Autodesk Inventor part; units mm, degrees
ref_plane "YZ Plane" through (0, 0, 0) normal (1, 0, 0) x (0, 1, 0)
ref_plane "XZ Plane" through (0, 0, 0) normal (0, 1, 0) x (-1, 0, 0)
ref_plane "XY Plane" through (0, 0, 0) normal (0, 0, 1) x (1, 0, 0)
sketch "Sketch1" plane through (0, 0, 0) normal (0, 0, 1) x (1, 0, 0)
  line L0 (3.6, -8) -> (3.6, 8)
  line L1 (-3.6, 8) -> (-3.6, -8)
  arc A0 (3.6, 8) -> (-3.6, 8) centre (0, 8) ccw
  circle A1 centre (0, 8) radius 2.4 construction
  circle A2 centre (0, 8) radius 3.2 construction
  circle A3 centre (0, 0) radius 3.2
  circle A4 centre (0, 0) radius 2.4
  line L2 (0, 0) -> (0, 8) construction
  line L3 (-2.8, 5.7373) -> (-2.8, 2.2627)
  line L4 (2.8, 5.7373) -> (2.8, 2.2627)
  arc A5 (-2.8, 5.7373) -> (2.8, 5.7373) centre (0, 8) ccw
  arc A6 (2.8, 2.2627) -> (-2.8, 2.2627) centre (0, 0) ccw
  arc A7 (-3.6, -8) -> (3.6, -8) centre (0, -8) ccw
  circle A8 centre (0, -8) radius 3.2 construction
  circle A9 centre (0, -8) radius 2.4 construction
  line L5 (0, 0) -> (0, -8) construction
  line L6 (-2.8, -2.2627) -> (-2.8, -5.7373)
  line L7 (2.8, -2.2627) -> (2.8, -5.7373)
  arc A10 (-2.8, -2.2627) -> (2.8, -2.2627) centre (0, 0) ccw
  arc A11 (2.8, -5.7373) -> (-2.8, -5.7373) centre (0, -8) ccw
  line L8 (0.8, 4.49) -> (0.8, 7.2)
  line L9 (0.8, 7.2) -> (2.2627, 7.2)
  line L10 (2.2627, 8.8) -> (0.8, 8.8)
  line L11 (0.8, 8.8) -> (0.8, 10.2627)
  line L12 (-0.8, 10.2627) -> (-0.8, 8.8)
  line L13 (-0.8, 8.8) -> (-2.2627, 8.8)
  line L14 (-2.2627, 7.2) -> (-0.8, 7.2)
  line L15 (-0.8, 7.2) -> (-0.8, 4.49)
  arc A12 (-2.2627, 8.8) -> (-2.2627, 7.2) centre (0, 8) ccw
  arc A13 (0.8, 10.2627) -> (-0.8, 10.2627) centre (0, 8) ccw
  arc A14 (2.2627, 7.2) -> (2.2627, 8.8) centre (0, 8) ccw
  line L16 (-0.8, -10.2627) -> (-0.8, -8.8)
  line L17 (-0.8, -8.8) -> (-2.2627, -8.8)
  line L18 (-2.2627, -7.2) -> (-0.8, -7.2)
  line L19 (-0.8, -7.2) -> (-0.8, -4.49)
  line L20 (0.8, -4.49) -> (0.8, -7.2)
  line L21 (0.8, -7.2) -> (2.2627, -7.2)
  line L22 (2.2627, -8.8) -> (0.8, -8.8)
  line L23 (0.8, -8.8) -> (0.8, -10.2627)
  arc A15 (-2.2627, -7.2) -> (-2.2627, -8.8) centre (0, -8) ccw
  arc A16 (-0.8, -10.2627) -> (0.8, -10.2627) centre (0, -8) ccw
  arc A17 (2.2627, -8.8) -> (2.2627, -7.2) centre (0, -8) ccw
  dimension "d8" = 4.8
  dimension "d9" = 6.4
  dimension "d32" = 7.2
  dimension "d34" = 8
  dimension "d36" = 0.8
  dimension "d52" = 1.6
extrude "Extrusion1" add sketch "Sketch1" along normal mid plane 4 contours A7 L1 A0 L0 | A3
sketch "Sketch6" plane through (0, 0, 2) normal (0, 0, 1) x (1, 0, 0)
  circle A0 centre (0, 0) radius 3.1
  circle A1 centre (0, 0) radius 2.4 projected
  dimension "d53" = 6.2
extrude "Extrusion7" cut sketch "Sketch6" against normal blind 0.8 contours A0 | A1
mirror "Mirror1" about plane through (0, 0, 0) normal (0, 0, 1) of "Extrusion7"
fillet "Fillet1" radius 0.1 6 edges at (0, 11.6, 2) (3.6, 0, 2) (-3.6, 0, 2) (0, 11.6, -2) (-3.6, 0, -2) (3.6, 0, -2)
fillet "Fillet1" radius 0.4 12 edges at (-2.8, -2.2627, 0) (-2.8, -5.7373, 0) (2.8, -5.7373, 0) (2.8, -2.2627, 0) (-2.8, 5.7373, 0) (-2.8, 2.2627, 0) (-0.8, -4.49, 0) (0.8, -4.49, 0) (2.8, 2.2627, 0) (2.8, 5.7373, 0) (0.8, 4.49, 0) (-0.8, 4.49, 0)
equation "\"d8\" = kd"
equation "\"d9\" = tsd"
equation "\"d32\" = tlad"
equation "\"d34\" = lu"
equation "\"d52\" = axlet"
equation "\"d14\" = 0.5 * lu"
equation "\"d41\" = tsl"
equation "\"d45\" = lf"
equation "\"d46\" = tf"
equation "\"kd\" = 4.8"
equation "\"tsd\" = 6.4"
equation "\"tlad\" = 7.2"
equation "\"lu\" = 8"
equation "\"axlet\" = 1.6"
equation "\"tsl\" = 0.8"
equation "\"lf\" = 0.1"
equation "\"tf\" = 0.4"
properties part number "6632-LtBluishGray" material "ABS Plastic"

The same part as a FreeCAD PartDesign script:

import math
import FreeCAD as App
import Part
import Sketcher
from FreeCAD import Vector
Q = App.Units.Quantity


def edges_at(feature, points):
    """Names of the edges that pass closest to the given points."""
    edges = feature.Shape.Edges
    near = lambda p: min(range(len(edges)), key=lambda i: edges[i].distToShape(Part.Vertex(*p))[0])
    return sorted({f"Edge{near(p) + 1}" for p in points})

doc = App.newDocument("Part")
body = doc.addObject("PartDesign::Body", "Body")

# Sketch on XY plane
sketch1 = doc.addObject("Sketcher::SketchObject", "Sketch")
body.addObject(sketch1)
sketch1.AttachmentSupport = (doc.XY_Plane, [""])
sketch1.MapMode = "FlatFace"
sketch1.addGeometry(Part.ArcOfCircle(Part.Circle(Vector(0, -8, 0), Vector(0, 0, 1), 3.6), math.radians(180), math.radians(360)), False)
sketch1.addGeometry(Part.LineSegment(Vector(3.6, -8, 0), Vector(3.6, 8, 0)), False)
sketch1.addGeometry(Part.ArcOfCircle(Part.Circle(Vector(0, 8, 0), Vector(0, 0, 1), 3.6), math.radians(0), math.radians(180)), False)
sketch1.addGeometry(Part.LineSegment(Vector(-3.6, 8, 0), Vector(-3.6, -8, 0)), False)
sketch1.addGeometry(Part.LineSegment(Vector(-2.8, -5.7, 0), Vector(-2.8, -2.3, 0)), False)
sketch1.addGeometry(Part.ArcOfCircle(Part.Circle(Vector(0, 0, 0), Vector(0, 0, 1), 3.6), math.radians(-141), math.radians(-39)), False)
sketch1.addGeometry(Part.LineSegment(Vector(2.8, -2.3, 0), Vector(2.8, -5.7, 0)), False)
sketch1.addGeometry(Part.ArcOfCircle(Part.Circle(Vector(0, -8, 0), Vector(0, 0, 1), 3.6), math.radians(39), math.radians(77)), False)
sketch1.addGeometry(Part.LineSegment(Vector(0.8, -4.5, 0), Vector(0.8, -7.2, 0)), False)
sketch1.addGeometry(Part.LineSegment(Vector(0.8, -7.2, 0), Vector(2.3, -7.2, 0)), False)
sketch1.addGeometry(Part.ArcOfCircle(Part.Circle(Vector(0, -8, 0), Vector(0, 0, 1), 2.4), math.radians(-19), math.radians(19)), False)
sketch1.addGeometry(Part.LineSegment(Vector(2.3, -8.8, 0), Vector(0.8, -8.8, 0)), False)
sketch1.addGeometry(Part.LineSegment(Vector(0.8, -8.8, 0), Vector(0.8, -10.3, 0)), False)
sketch1.addGeometry(Part.ArcOfCircle(Part.Circle(Vector(0, -8, 0), Vector(0, 0, 1), 2.4), math.radians(-109), math.radians(-71)), False)
sketch1.addGeometry(Part.LineSegment(Vector(-0.8, -10.3, 0), Vector(-0.8, -8.8, 0)), False)
sketch1.addGeometry(Part.LineSegment(Vector(-0.8, -8.8, 0), Vector(-2.3, -8.8, 0)), False)
sketch1.addGeometry(Part.ArcOfCircle(Part.Circle(Vector(0, -8, 0), Vector(0, 0, 1), 2.4), math.radians(161), math.radians(199)), False)
sketch1.addGeometry(Part.LineSegment(Vector(-2.3, -7.2, 0), Vector(-0.8, -7.2, 0)), False)
sketch1.addGeometry(Part.LineSegment(Vector(-0.8, -7.2, 0), Vector(-0.8, -4.5, 0)), False)
sketch1.addGeometry(Part.ArcOfCircle(Part.Circle(Vector(0, -8, 0), Vector(0, 0, 1), 3.6), math.radians(103), math.radians(141)), False)
sketch1.addGeometry(Part.LineSegment(Vector(-2.8, 2.3, 0), Vector(-2.8, 5.7, 0)), False)
sketch1.addGeometry(Part.ArcOfCircle(Part.Circle(Vector(0, 8, 0), Vector(0, 0, 1), 3.6), math.radians(-141), math.radians(-103)), False)
sketch1.addGeometry(Part.LineSegment(Vector(-0.8, 4.5, 0), Vector(-0.8, 7.2, 0)), False)
sketch1.addGeometry(Part.LineSegment(Vector(-0.8, 7.2, 0), Vector(-2.3, 7.2, 0)), False)
sketch1.addGeometry(Part.ArcOfCircle(Part.Circle(Vector(0, 8, 0), Vector(0, 0, 1), 2.4), math.radians(161), math.radians(199)), False)
sketch1.addGeometry(Part.LineSegment(Vector(-2.3, 8.8, 0), Vector(-0.8, 8.8, 0)), False)
sketch1.addGeometry(Part.LineSegment(Vector(-0.8, 8.8, 0), Vector(-0.8, 10.3, 0)), False)
sketch1.addGeometry(Part.ArcOfCircle(Part.Circle(Vector(0, 8, 0), Vector(0, 0, 1), 2.4), math.radians(71), math.radians(109)), False)
sketch1.addGeometry(Part.LineSegment(Vector(0.8, 10.3, 0), Vector(0.8, 8.8, 0)), False)
sketch1.addGeometry(Part.LineSegment(Vector(0.8, 8.8, 0), Vector(2.3, 8.8, 0)), False)
sketch1.addGeometry(Part.ArcOfCircle(Part.Circle(Vector(0, 8, 0), Vector(0, 0, 1), 2.4), math.radians(-19), math.radians(19)), False)
sketch1.addGeometry(Part.LineSegment(Vector(2.3, 7.2, 0), Vector(0.8, 7.2, 0)), False)
sketch1.addGeometry(Part.LineSegment(Vector(0.8, 7.2, 0), Vector(0.8, 4.5, 0)), False)
sketch1.addGeometry(Part.ArcOfCircle(Part.Circle(Vector(0, 8, 0), Vector(0, 0, 1), 3.6), math.radians(-77), math.radians(-39)), False)
sketch1.addGeometry(Part.LineSegment(Vector(2.8, 5.7, 0), Vector(2.8, 2.3, 0)), False)
sketch1.addGeometry(Part.ArcOfCircle(Part.Circle(Vector(0, 0, 0), Vector(0, 0, 1), 3.6), math.radians(39), math.radians(141)), False)
sketch1.addGeometry(Part.Circle(Vector(0, 0, 0), Vector(0, 0, 1), 2.4), False)
sketch1.addConstraint(Sketcher.Constraint("Tangent", 0, 2, 1, 1))
sketch1.addConstraint(Sketcher.Constraint("Tangent", 1, 2, 2, 1))
sketch1.addConstraint(Sketcher.Constraint("Tangent", 2, 2, 3, 1))
sketch1.addConstraint(Sketcher.Constraint("Tangent", 3, 2, 0, 1))
sketch1.addConstraint(Sketcher.Constraint("Coincident", 4, 2, 5, 1))
sketch1.addConstraint(Sketcher.Constraint("Coincident", 5, 2, 6, 1))
sketch1.addConstraint(Sketcher.Constraint("Coincident", 6, 2, 7, 1))
sketch1.addConstraint(Sketcher.Constraint("Coincident", 7, 2, 8, 1))
sketch1.addConstraint(Sketcher.Constraint("Coincident", 8, 2, 9, 1))
sketch1.addConstraint(Sketcher.Constraint("Coincident", 9, 2, 10, 2))
sketch1.addConstraint(Sketcher.Constraint("Coincident", 10, 1, 11, 1))
sketch1.addConstraint(Sketcher.Constraint("Coincident", 11, 2, 12, 1))
sketch1.addConstraint(Sketcher.Constraint("Coincident", 12, 2, 13, 2))
sketch1.addConstraint(Sketcher.Constraint("Coincident", 13, 1, 14, 1))
sketch1.addConstraint(Sketcher.Constraint("Coincident", 14, 2, 15, 1))
sketch1.addConstraint(Sketcher.Constraint("Coincident", 15, 2, 16, 2))
sketch1.addConstraint(Sketcher.Constraint("Coincident", 16, 1, 17, 1))
sketch1.addConstraint(Sketcher.Constraint("Coincident", 17, 2, 18, 1))
sketch1.addConstraint(Sketcher.Constraint("Coincident", 18, 2, 19, 1))
sketch1.addConstraint(Sketcher.Constraint("Coincident", 19, 2, 4, 1))
sketch1.addConstraint(Sketcher.Constraint("Coincident", 20, 2, 21, 1))
sketch1.addConstraint(Sketcher.Constraint("Coincident", 21, 2, 22, 1))
sketch1.addConstraint(Sketcher.Constraint("Coincident", 22, 2, 23, 1))
sketch1.addConstraint(Sketcher.Constraint("Coincident", 23, 2, 24, 2))
sketch1.addConstraint(Sketcher.Constraint("Coincident", 24, 1, 25, 1))
sketch1.addConstraint(Sketcher.Constraint("Coincident", 25, 2, 26, 1))
sketch1.addConstraint(Sketcher.Constraint("Coincident", 26, 2, 27, 2))
sketch1.addConstraint(Sketcher.Constraint("Coincident", 27, 1, 28, 1))
sketch1.addConstraint(Sketcher.Constraint("Coincident", 28, 2, 29, 1))
sketch1.addConstraint(Sketcher.Constraint("Coincident", 29, 2, 30, 2))
sketch1.addConstraint(Sketcher.Constraint("Coincident", 30, 1, 31, 1))
sketch1.addConstraint(Sketcher.Constraint("Coincident", 31, 2, 32, 1))
sketch1.addConstraint(Sketcher.Constraint("Coincident", 32, 2, 33, 1))
sketch1.addConstraint(Sketcher.Constraint("Coincident", 33, 2, 34, 1))
sketch1.addConstraint(Sketcher.Constraint("Coincident", 34, 2, 35, 1))
sketch1.addConstraint(Sketcher.Constraint("Coincident", 35, 2, 20, 1))
sketch1.addConstraint(Sketcher.Constraint("Vertical", 1))
sketch1.addConstraint(Sketcher.Constraint("Vertical", 3))
sketch1.addConstraint(Sketcher.Constraint("Vertical", 4))
sketch1.addConstraint(Sketcher.Constraint("Vertical", 6))
sketch1.addConstraint(Sketcher.Constraint("Vertical", 8))
sketch1.addConstraint(Sketcher.Constraint("Horizontal", 9))
sketch1.addConstraint(Sketcher.Constraint("Horizontal", 11))
sketch1.addConstraint(Sketcher.Constraint("Vertical", 12))
sketch1.addConstraint(Sketcher.Constraint("Vertical", 14))
sketch1.addConstraint(Sketcher.Constraint("Horizontal", 15))
sketch1.addConstraint(Sketcher.Constraint("Horizontal", 17))
sketch1.addConstraint(Sketcher.Constraint("Vertical", 18))
sketch1.addConstraint(Sketcher.Constraint("Vertical", 20))
sketch1.addConstraint(Sketcher.Constraint("Vertical", 22))
sketch1.addConstraint(Sketcher.Constraint("Horizontal", 23))
sketch1.addConstraint(Sketcher.Constraint("Horizontal", 25))
sketch1.addConstraint(Sketcher.Constraint("Vertical", 26))
sketch1.addConstraint(Sketcher.Constraint("Vertical", 28))
sketch1.addConstraint(Sketcher.Constraint("Horizontal", 29))
sketch1.addConstraint(Sketcher.Constraint("Horizontal", 31))
sketch1.addConstraint(Sketcher.Constraint("Vertical", 32))
sketch1.addConstraint(Sketcher.Constraint("Vertical", 34))
sketch1.addConstraint(Sketcher.Constraint("Coincident", 5, 3, -1, 1))
sketch1.addConstraint(Sketcher.Constraint("Coincident", 35, 3, -1, 1))
sketch1.addConstraint(Sketcher.Constraint("Coincident", 36, 3, -1, 1))
sketch1.addConstraint(Sketcher.Constraint("Coincident", 7, 3, 0, 3))
sketch1.addConstraint(Sketcher.Constraint("Coincident", 10, 3, 0, 3))
sketch1.addConstraint(Sketcher.Constraint("Coincident", 13, 3, 0, 3))
sketch1.addConstraint(Sketcher.Constraint("Coincident", 16, 3, 0, 3))
sketch1.addConstraint(Sketcher.Constraint("Coincident", 19, 3, 0, 3))
sketch1.addConstraint(Sketcher.Constraint("Coincident", 21, 3, 2, 3))
sketch1.addConstraint(Sketcher.Constraint("Coincident", 24, 3, 2, 3))
sketch1.addConstraint(Sketcher.Constraint("Coincident", 27, 3, 2, 3))
sketch1.addConstraint(Sketcher.Constraint("Coincident", 30, 3, 2, 3))
sketch1.addConstraint(Sketcher.Constraint("Coincident", 33, 3, 2, 3))
sketch1.addConstraint(Sketcher.Constraint("Equal", 2, 5))
sketch1.addConstraint(Sketcher.Constraint("Equal", 5, 7))
sketch1.addConstraint(Sketcher.Constraint("Equal", 10, 13))
sketch1.addConstraint(Sketcher.Constraint("Equal", 13, 16))
sketch1.addConstraint(Sketcher.Constraint("Equal", 7, 19))
sketch1.addConstraint(Sketcher.Constraint("Equal", 19, 21))
sketch1.addConstraint(Sketcher.Constraint("Equal", 16, 24))
sketch1.addConstraint(Sketcher.Constraint("Equal", 24, 27))
sketch1.addConstraint(Sketcher.Constraint("Equal", 27, 30))
sketch1.addConstraint(Sketcher.Constraint("Equal", 21, 33))
sketch1.addConstraint(Sketcher.Constraint("Equal", 33, 35))
sketch1.addConstraint(Sketcher.Constraint("Equal", 30, 36))
sketch1.addConstraint(Sketcher.Constraint("Symmetric", 0, 3, 2, 3, -1, 1))
sketch1.addConstraint(Sketcher.Constraint("Symmetric", 8, 2, 22, 2, -1, 1))
sketch1.addConstraint(Sketcher.Constraint("Symmetric", 11, 2, 25, 2, -1, 1))
sketch1.addConstraint(Sketcher.Constraint("Symmetric", 14, 2, 28, 2, -1, 1))
sketch1.addConstraint(Sketcher.Constraint("Symmetric", 17, 2, 31, 2, -1, 1))
sketch1.addConstraint(Sketcher.Constraint("Symmetric", 11, 2, 14, 2, -2))
sketch1.addConstraint(Sketcher.Constraint("Symmetric", 8, 2, 17, 2, -2))
sketch1.addConstraint(Sketcher.Constraint("Horizontal", 4, 2, 5, 2))
sketch1.addConstraint(Sketcher.Constraint("Horizontal", 20, 2, 33, 2))
sketch1.addConstraint(Sketcher.Constraint("Vertical", 9, 2, 10, 1))
sketch1.addConstraint(Sketcher.Constraint("Vertical", 8, 2, 11, 2))
sketch1.addConstraint(Sketcher.Constraint("Vertical", 19, 2, 20, 2))
sketch1.addConstraint(Sketcher.Constraint("Equal", 31, 12))
sketch1.addConstraint(Sketcher.Constraint("Diameter", 36, Q("4.8 mm")))
sketch1.addConstraint(Sketcher.Constraint("Radius", 0, Q("3.6 mm")))
sketch1.addConstraint(Sketcher.Constraint("DistanceY", 0, 3, -1, 1, Q("8 mm")))
sketch1.addConstraint(Sketcher.Constraint("DistanceX", -1, 1, 7, 2, Q("0.8 mm")))
sketch1.addConstraint(Sketcher.Constraint("DistanceX", 3, 2, 4, 2, Q("0.8 mm")))
pad1 = doc.addObject("PartDesign::Pad", "Pad")
body.addObject(pad1)
pad1.Profile = sketch1
pad1.Length = 4
pad1.Midplane = True

# Sketch on XY plane
sketch2 = doc.addObject("Sketcher::SketchObject", "Sketch001")
body.addObject(sketch2)
sketch2.AttachmentSupport = (doc.XY_Plane, [""])
sketch2.MapMode = "FlatFace"
sketch2.AttachmentOffset = App.Placement(Vector(0, 0, 2), App.Rotation())
sketch2.addGeometry(Part.Circle(Vector(0, 0, 0), Vector(0, 0, 1), 3.1), False)
sketch2.addConstraint(Sketcher.Constraint("Coincident", 0, 3, -1, 1))
sketch2.addConstraint(Sketcher.Constraint("Diameter", 0, Q("6.2 mm")))
pocket1 = doc.addObject("PartDesign::Pocket", "Pocket")
body.addObject(pocket1)
pocket1.Profile = sketch2
pocket1.Length = 0.8
doc.recompute()

mirrored = doc.addObject("PartDesign::Mirrored", "Mirrored")
body.addObject(mirrored)
mirrored.Originals = [pocket1]
mirrored.MirrorPlane = (doc.XY_Plane, [""])
body.Tip = mirrored
doc.recompute()

fillet = doc.addObject("PartDesign::Fillet", "Fillet")
body.addObject(fillet)
fillet.Base = (mirrored, edges_at(mirrored, [
    (0, 11.6, 2),
    (3.6, 0, 2),
    (-3.6, 0, 2),
    (0, 11.6, -2),
    (-3.6, 0, -2),
    (3.6, 0, -2),
]))
fillet.Radius = 0.1
doc.recompute()

fillet2 = doc.addObject("PartDesign::Fillet", "Fillet001")
body.addObject(fillet2)
fillet2.Base = (fillet, edges_at(fillet, [
    (-2.8, -2.263, 0),
    (-2.8, -5.737, 0),
    (2.8, -5.737, 0),
    (2.8, -2.263, 0),
    (-2.8, 5.737, 0),
    (-2.8, 2.263, 0),
    (-0.8, -4.49, 0),
    (0.8, -4.49, 0),
    (2.8, 2.263, 0),
    (2.8, 5.737, 0),
    (0.8, 4.49, 0),
    (-0.8, 4.49, 0),
]))
fillet2.Radius = 0.4

doc.recompute()
